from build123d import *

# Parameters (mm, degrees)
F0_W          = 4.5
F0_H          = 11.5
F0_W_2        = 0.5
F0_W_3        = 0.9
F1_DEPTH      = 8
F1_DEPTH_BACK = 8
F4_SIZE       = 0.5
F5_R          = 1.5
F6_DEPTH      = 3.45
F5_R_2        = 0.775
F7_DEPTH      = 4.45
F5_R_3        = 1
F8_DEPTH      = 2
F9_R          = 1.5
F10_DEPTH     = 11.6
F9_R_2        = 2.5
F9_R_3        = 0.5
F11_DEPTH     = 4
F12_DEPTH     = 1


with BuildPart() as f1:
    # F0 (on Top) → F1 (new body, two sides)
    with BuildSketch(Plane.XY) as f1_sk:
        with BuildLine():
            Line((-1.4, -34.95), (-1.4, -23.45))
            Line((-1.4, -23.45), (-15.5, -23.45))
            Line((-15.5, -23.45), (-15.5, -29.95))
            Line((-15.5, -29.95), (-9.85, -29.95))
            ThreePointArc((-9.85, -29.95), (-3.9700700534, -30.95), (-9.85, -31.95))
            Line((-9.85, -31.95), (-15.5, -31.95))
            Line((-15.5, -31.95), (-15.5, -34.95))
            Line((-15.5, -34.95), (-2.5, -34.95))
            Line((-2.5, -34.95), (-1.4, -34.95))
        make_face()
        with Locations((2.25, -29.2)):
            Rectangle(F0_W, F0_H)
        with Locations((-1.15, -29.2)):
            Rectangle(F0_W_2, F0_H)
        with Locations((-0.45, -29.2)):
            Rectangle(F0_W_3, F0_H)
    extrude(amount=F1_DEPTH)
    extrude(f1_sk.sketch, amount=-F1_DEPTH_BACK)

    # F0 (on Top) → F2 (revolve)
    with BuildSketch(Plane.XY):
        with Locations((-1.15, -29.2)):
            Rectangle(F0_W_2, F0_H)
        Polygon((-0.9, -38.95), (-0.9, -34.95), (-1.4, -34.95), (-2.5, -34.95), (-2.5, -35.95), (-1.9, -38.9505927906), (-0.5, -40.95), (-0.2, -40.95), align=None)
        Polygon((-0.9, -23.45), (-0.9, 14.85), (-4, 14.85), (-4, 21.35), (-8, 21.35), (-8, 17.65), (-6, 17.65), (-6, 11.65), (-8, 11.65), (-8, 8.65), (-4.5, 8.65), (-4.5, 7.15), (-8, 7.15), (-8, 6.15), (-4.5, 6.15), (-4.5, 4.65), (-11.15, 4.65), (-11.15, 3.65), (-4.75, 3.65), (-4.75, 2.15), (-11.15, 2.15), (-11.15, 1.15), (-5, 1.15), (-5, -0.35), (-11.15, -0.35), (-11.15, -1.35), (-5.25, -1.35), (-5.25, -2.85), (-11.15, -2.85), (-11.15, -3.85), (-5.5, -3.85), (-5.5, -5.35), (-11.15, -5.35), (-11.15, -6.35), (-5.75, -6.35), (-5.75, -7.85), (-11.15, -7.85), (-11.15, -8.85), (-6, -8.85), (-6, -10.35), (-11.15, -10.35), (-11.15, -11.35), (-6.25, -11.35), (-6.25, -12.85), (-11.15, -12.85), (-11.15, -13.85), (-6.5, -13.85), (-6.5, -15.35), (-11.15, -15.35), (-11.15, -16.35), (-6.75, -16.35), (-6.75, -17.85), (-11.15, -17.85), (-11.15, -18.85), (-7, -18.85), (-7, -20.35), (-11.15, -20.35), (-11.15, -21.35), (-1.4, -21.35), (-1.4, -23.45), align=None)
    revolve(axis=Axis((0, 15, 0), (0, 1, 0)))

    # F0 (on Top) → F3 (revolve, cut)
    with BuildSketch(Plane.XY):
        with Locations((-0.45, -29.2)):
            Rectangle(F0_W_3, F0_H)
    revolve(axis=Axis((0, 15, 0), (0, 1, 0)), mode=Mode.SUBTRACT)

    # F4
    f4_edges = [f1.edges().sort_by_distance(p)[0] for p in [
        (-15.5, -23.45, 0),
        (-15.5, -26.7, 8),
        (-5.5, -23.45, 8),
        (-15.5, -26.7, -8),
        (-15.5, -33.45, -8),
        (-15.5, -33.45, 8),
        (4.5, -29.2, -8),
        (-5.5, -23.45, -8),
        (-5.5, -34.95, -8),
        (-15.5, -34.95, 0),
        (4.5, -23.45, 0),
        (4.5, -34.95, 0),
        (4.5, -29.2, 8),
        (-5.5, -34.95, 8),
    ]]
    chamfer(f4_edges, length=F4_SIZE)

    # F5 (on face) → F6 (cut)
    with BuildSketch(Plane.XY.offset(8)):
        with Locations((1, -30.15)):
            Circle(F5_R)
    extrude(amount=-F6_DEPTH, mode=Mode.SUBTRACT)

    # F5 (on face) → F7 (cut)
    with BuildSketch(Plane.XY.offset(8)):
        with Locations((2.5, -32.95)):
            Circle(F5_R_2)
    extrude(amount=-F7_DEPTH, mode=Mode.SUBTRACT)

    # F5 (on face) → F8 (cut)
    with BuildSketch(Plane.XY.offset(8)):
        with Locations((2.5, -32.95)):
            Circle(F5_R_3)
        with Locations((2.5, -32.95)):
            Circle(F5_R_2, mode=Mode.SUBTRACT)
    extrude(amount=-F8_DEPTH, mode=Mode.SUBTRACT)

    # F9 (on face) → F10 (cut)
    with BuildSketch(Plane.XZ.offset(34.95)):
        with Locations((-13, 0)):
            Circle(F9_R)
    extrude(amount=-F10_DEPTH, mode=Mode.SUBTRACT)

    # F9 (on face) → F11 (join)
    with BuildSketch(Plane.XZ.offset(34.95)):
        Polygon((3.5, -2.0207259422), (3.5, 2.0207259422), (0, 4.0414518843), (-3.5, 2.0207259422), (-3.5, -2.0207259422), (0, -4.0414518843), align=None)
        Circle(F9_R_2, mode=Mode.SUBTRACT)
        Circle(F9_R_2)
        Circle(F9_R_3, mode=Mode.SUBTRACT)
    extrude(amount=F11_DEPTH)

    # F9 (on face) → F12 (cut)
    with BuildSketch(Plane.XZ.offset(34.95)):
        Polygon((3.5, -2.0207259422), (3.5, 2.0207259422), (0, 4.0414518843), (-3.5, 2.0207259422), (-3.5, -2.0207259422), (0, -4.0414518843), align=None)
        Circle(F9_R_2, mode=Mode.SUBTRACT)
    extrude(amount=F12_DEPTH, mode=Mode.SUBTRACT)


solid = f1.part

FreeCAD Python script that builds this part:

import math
import FreeCAD as App
import Part
import Sketcher

V = App.Vector
Q = App.Units.Quantity


def edges_at(feature, points):
    """Names of the edges that pass closest to the given points."""
    edges = feature.Shape.Edges
    near = lambda p: min(range(len(edges)), key=lambda i: edges[i].distToShape(Part.Vertex(*p))[0])
    return sorted({f"Edge{near(p) + 1}" for p in points})


def add_polygon(sketch, points):
    """Adds a closed chain of lines whose ends are joined by coincident constraints."""
    first, n = sketch.GeometryCount, len(points)
    for a, b in zip(points, points[1:] + points[:1]):
        sketch.addGeometry(Part.LineSegment(App.Vector(*a, 0), App.Vector(*b, 0)), False)
    for i in range(n):
        sketch.addConstraint(Sketcher.Constraint("Coincident", first + i, 2, first + (i + 1) % n, 1))

doc = App.newDocument("Part")
body = doc.addObject("PartDesign::Body", "Body")

# Sketch on XY plane
sketch1 = body.newObject("Sketcher::SketchObject", "Sketch")
sketch1.AttachmentSupport = (doc.getObject("XY_Plane"), [""])
sketch1.MapMode = "FlatFace"
sketch1.addGeometry(Part.LineSegment(V(-15.5, -23.4, 0), V(-15.5, -29.9, 0)), False)
sketch1.addGeometry(Part.LineSegment(V(-15.5, -29.9, 0), V(-9.8, -29.9, 0)), False)
sketch1.addGeometry(Part.ArcOfCircle(Part.Circle(V(-7, -30.9, 0), V(0, 0, 1), 3), math.radians(-161), math.radians(161)), False)
sketch1.addGeometry(Part.LineSegment(V(-9.8, -31.9, 0), V(-15.5, -31.9, 0)), False)
sketch1.addGeometry(Part.LineSegment(V(-15.5, -31.9, 0), V(-15.5, -35, 0)), False)
sketch1.addGeometry(Part.LineSegment(V(-15.5, -35, 0), V(4.5, -35, 0)), False)
sketch1.addGeometry(Part.LineSegment(V(4.5, -35, 0), V(4.5, -23.4, 0)), False)
sketch1.addGeometry(Part.LineSegment(V(4.5, -23.4, 0), V(-15.5, -23.4, 0)), False)
sketch1.addConstraint(Sketcher.Constraint("Coincident", 0, 2, 1, 1))
sketch1.addConstraint(Sketcher.Constraint("Coincident", 1, 2, 2, 2))
sketch1.addConstraint(Sketcher.Constraint("Coincident", 2, 1, 3, 1))
sketch1.addConstraint(Sketcher.Constraint("Coincident", 3, 2, 4, 1))
sketch1.addConstraint(Sketcher.Constraint("Coincident", 4, 2, 5, 1))
sketch1.addConstraint(Sketcher.Constraint("Coincident", 5, 2, 6, 1))
sketch1.addConstraint(Sketcher.Constraint("Coincident", 6, 2, 7, 1))
sketch1.addConstraint(Sketcher.Constraint("Coincident", 7, 2, 0, 1))
sketch1.addConstraint(Sketcher.Constraint("Vertical", 0))
sketch1.addConstraint(Sketcher.Constraint("Horizontal", 1))
sketch1.addConstraint(Sketcher.Constraint("Horizontal", 3))
sketch1.addConstraint(Sketcher.Constraint("Vertical", 4))
sketch1.addConstraint(Sketcher.Constraint("Horizontal", 5))
sketch1.addConstraint(Sketcher.Constraint("Vertical", 6))
sketch1.addConstraint(Sketcher.Constraint("Horizontal", 7))
sketch1.addConstraint(Sketcher.Constraint("Vertical", 1, 2, 2, 1))
sketch1.addConstraint(Sketcher.Constraint("Vertical", 0, 2, 3, 2))
sketch1.addConstraint(Sketcher.Constraint("DistanceX", 5, 1, 5, 2, Q("20 mm")))
sketch1.addConstraint(Sketcher.Constraint("DistanceY", 4, 2, 4, 1, Q("3 mm")))
sketch1.addConstraint(Sketcher.Constraint("DistanceY", 0, 2, 0, 1, Q("6.5 mm")))
sketch1.addConstraint(Sketcher.Constraint("DistanceY", 6, 1, 6, 2, Q("11.5 mm")))
sketch1.addConstraint(Sketcher.Constraint("Radius", 2, Q("3.025 mm")))
sketch1.addConstraint(Sketcher.Constraint("DistanceX", 1, 1, 1, 2, Q("5.65 mm")))
sketch1.addConstraint(Sketcher.Constraint("DistanceX", 0, 2, -1, 1, Q("15.5 mm")))
sketch1.addConstraint(Sketcher.Constraint("DistanceY", 2, 3, -1, 1, Q("30.95 mm")))
pad1 = body.newObject("PartDesign::Pad", "Pad")
pad1.Profile = sketch1
pad1.Type = "TwoLengths"
pad1.Length = 8
pad1.Length2 = 8

# Sketch on XY plane
sketch2 = body.newObject("Sketcher::SketchObject", "Sketch001")
sketch2.AttachmentSupport = (doc.getObject("XY_Plane"), [""])
sketch2.MapMode = "FlatFace"
add_polygon(sketch2, [(-1.4, -34.95), (-2.5, -34.95), (-2.5, -35.95), (-1.9, -38.95), (-0.5, -40.95), (-0.2, -40.95), (-0.9, -38.95), (-0.9, 14.85), (-4, 14.85), (-4, 21.35), (-8, 21.35), (-8, 17.65), (-6, 17.65), (-6, 11.65), (-8, 11.65), (-8, 8.65), (-4.5, 8.65), (-4.5, 7.15), (-8, 7.15), (-8, 6.15), (-4.5, 6.15), (-4.5, 4.65), (-11.15, 4.65), (-11.15, 3.65), (-4.75, 3.65), (-4.75, 2.15), (-11.15, 2.15), (-11.15, 1.15), (-5, 1.15), (-5, -0.35), (-11.15, -0.35), (-11.15, -1.35), (-5.25, -1.35), (-5.25, -2.85), (-11.15, -2.85), (-11.15, -3.85), (-5.5, -3.85), (-5.5, -5.35), (-11.15, -5.35), (-11.15, -6.35), (-5.75, -6.35), (-5.75, -7.85), (-11.15, -7.85), (-11.15, -8.85), (-6, -8.85), (-6, -10.35), (-11.15, -10.35), (-11.15, -11.35), (-6.25, -11.35), (-6.25, -12.85), (-11.15, -12.85), (-11.15, -13.85), (-6.5, -13.85), (-6.5, -15.35), (-11.15, -15.35), (-11.15, -16.35), (-6.75, -16.35), (-6.75, -17.85), (-11.15, -17.85), (-11.15, -18.85), (-7, -18.85), (-7, -20.35), (-11.15, -20.35), (-11.15, -21.35), (-1.4, -21.35)])  # lines 0-64
sketch2.addConstraint(Sketcher.Constraint("Horizontal", 0))
sketch2.addConstraint(Sketcher.Constraint("Vertical", 1))
sketch2.addConstraint(Sketcher.Constraint("Horizontal", 4))
sketch2.addConstraint(Sketcher.Constraint("Vertical", 6))
sketch2.addConstraint(Sketcher.Constraint("Horizontal", 7))
sketch2.addConstraint(Sketcher.Constraint("Vertical", 8))
sketch2.addConstraint(Sketcher.Constraint("Horizontal", 9))
sketch2.addConstraint(Sketcher.Constraint("Vertical", 10))
sketch2.addConstraint(Sketcher.Constraint("Horizontal", 11))
sketch2.addConstraint(Sketcher.Constraint("Vertical", 12))
sketch2.addConstraint(Sketcher.Constraint("Horizontal", 13))
sketch2.addConstraint(Sketcher.Constraint("Vertical", 14))
sketch2.addConstraint(Sketcher.Constraint("Horizontal", 15))
sketch2.addConstraint(Sketcher.Constraint("Vertical", 16))
sketch2.addConstraint(Sketcher.Constraint("Horizontal", 17))
sketch2.addConstraint(Sketcher.Constraint("Vertical", 18))
sketch2.addConstraint(Sketcher.Constraint("Horizontal", 19))
sketch2.addConstraint(Sketcher.Constraint("Vertical", 20))
sketch2.addConstraint(Sketcher.Constraint("Horizontal", 21))
sketch2.addConstraint(Sketcher.Constraint("Vertical", 22))
sketch2.addConstraint(Sketcher.Constraint("Horizontal", 23))
sketch2.addConstraint(Sketcher.Constraint("Vertical", 24))
sketch2.addConstraint(Sketcher.Constraint("Horizontal", 25))
sketch2.addConstraint(Sketcher.Constraint("Vertical", 26))
sketch2.addConstraint(Sketcher.Constraint("Horizontal", 27))
sketch2.addConstraint(Sketcher.Constraint("Vertical", 28))
sketch2.addConstraint(Sketcher.Constraint("Horizontal", 29))
sketch2.addConstraint(Sketcher.Constraint("Vertical", 30))
sketch2.addConstraint(Sketcher.Constraint("Horizontal", 31))
sketch2.addConstraint(Sketcher.Constraint("Vertical", 32))
sketch2.addConstraint(Sketcher.Constraint("Horizontal", 33))
sketch2.addConstraint(Sketcher.Constraint("Vertical", 34))
sketch2.addConstraint(Sketcher.Constraint("Horizontal", 35))
sketch2.addConstraint(Sketcher.Constraint("Vertical", 36))
sketch2.addConstraint(Sketcher.Constraint("Horizontal", 37))
sketch2.addConstraint(Sketcher.Constraint("Vertical", 38))
sketch2.addConstraint(Sketcher.Constraint("Horizontal", 39))
sketch2.addConstraint(Sketcher.Constraint("Vertical", 40))
sketch2.addConstraint(Sketcher.Constraint("Horizontal", 41))
sketch2.addConstraint(Sketcher.Constraint("Vertical", 42))
sketch2.addConstraint(Sketcher.Constraint("Horizontal", 43))
sketch2.addConstraint(Sketcher.Constraint("Vertical", 44))
sketch2.addConstraint(Sketcher.Constraint("Horizontal", 45))
sketch2.addConstraint(Sketcher.Constraint("Vertical", 46))
sketch2.addConstraint(Sketcher.Constraint("Horizontal", 47))
sketch2.addConstraint(Sketcher.Constraint("Vertical", 48))
sketch2.addConstraint(Sketcher.Constraint("Horizontal", 49))
sketch2.addConstraint(Sketcher.Constraint("Vertical", 50))
sketch2.addConstraint(Sketcher.Constraint("Horizontal", 51))
sketch2.addConstraint(Sketcher.Constraint("Vertical", 52))
sketch2.addConstraint(Sketcher.Constraint("Horizontal", 53))
sketch2.addConstraint(Sketcher.Constraint("Vertical", 54))
sketch2.addConstraint(Sketcher.Constraint("Horizontal", 55))
sketch2.addConstraint(Sketcher.Constraint("Vertical", 56))
sketch2.addConstraint(Sketcher.Constraint("Horizontal", 57))
sketch2.addConstraint(Sketcher.Constraint("Vertical", 58))
sketch2.addConstraint(Sketcher.Constraint("Horizontal", 59))
sketch2.addConstraint(Sketcher.Constraint("Vertical", 60))
sketch2.addConstraint(Sketcher.Constraint("Horizontal", 61))
sketch2.addConstraint(Sketcher.Constraint("Vertical", 62))
sketch2.addConstraint(Sketcher.Constraint("Horizontal", 63))
sketch2.addConstraint(Sketcher.Constraint("Vertical", 64))
sketch2.addConstraint(Sketcher.Constraint("Vertical", 10, 2, 13, 2))
sketch2.addConstraint(Sketcher.Constraint("Vertical", 14, 2, 17, 2))
sketch2.addConstraint(Sketcher.Constraint("Vertical", 16, 2, 19, 2))
sketch2.addConstraint(Sketcher.Constraint("Vertical", 22, 2, 25, 2))
sketch2.addConstraint(Sketcher.Constraint("Vertical", 26, 2, 29, 2))
sketch2.addConstraint(Sketcher.Constraint("Vertical", 30, 2, 33, 2))
sketch2.addConstraint(Sketcher.Constraint("Vertical", 34, 2, 37, 2))
sketch2.addConstraint(Sketcher.Constraint("Vertical", 38, 2, 41, 2))
sketch2.addConstraint(Sketcher.Constraint("Vertical", 12, 2, 43, 2))
sketch2.addConstraint(Sketcher.Constraint("Vertical", 42, 2, 45, 2))
sketch2.addConstraint(Sketcher.Constraint("Vertical", 46, 2, 49, 2))
sketch2.addConstraint(Sketcher.Constraint("Vertical", 50, 2, 53, 2))
sketch2.addConstraint(Sketcher.Constraint("Vertical", 54, 2, 57, 2))
sketch2.addConstraint(Sketcher.Constraint("Vertical", 58, 2, 61, 2))
sketch2.addConstraint(Sketcher.Constraint("Equal", 1, 18))
sketch2.addConstraint(Sketcher.Constraint("Equal", 16, 20))
sketch2.addConstraint(Sketcher.Constraint("Equal", 18, 22))
sketch2.addConstraint(Sketcher.Constraint("Equal", 20, 24))
sketch2.addConstraint(Sketcher.Constraint("Equal", 22, 26))
sketch2.addConstraint(Sketcher.Constraint("Equal", 24, 28))
sketch2.addConstraint(Sketcher.Constraint("Equal", 26, 30))
sketch2.addConstraint(Sketcher.Constraint("Equal", 28, 32))
sketch2.addConstraint(Sketcher.Constraint("Equal", 30, 34))
sketch2.addConstraint(Sketcher.Constraint("Equal", 32, 36))
sketch2.addConstraint(Sketcher.Constraint("Equal", 34, 38))
sketch2.addConstraint(Sketcher.Constraint("Equal", 36, 40))
sketch2.addConstraint(Sketcher.Constraint("Equal", 38, 42))
sketch2.addConstraint(Sketcher.Constraint("Equal", 40, 44))
sketch2.addConstraint(Sketcher.Constraint("Equal", 42, 46))
sketch2.addConstraint(Sketcher.Constraint("Equal", 44, 48))
sketch2.addConstraint(Sketcher.Constraint("Equal", 46, 50))
sketch2.addConstraint(Sketcher.Constraint("Equal", 48, 52))
sketch2.addConstraint(Sketcher.Constraint("Equal", 50, 54))
sketch2.addConstraint(Sketcher.Constraint("Equal", 52, 56))
sketch2.addConstraint(Sketcher.Constraint("Equal", 54, 58))
sketch2.addConstraint(Sketcher.Constraint("Equal", 56, 60))
sketch2.addConstraint(Sketcher.Constraint("Equal", 58, 62))
sketch2.addConstraint(Sketcher.Constraint("DistanceX", 9, 2, 9, 1, Q("4 mm")))
sketch2.addConstraint(Sketcher.Constraint("DistanceX", 11, 1, 11, 2, Q("2 mm")))
sketch2.addConstraint(Sketcher.Constraint("DistanceY", 1, 2, 1, 1, Q("1 mm")))
sketch2.addConstraint(Sketcher.Constraint("DistanceY", 12, 2, 12, 1, Q("6 mm")))
sketch2.addConstraint(Sketcher.Constraint("DistanceY", 14, 2, 14, 1, Q("3 mm")))
sketch2.addConstraint(Sketcher.Constraint("Angle", 3, Q("-55 deg")))
sketch2.addConstraint(Sketcher.Constraint("DistanceX", 0, 2, 0, 1, Q("1.1 mm")))
sketch2.addConstraint(Sketcher.Constraint("DistanceX", 4, 1, 4, 2, Q("0.3 mm")))
sketch2.addConstraint(Sketcher.Constraint("DistanceX", 7, 2, 7, 1, Q("3.1 mm")))
sketch2.addConstraint(Sketcher.Constraint("DistanceX", 15, 1, 15, 2, Q("3.5 mm")))
sketch2.addConstraint(Sketcher.Constraint("DistanceX", 23, 1, 23, 2, Q("6.4 mm")))
sketch2.addConstraint(Sketcher.Constraint("DistanceX", 31, 1, 31, 2, Q("5.9 mm")))
sketch2.addConstraint(Sketcher.Constraint("DistanceX", 39, 1, 39, 2, Q("5.4 mm")))
sketch2.addConstraint(Sketcher.Constraint("DistanceX", 47, 1, 47, 2, Q("4.9 mm")))
sketch2.addConstraint(Sketcher.Constraint("DistanceX", 55, 1, 55, 2, Q("4.4 mm")))
sketch2.addConstraint(Sketcher.Constraint("DistanceY", 6, 1, 6, 2, Q("53.8 mm")))
sketch2.addConstraint(Sketcher.Constraint("DistanceY", 8, 1, 8, 2, Q("6.5 mm")))
sketch2.addConstraint(Sketcher.Constraint("DistanceY", 10, 2, 10, 1, Q("3.7 mm")))
sketch2.addConstraint(Sketcher.Constraint("DistanceY", 16, 2, 16, 1, Q("1.5 mm")))
sketch2.addConstraint(Sketcher.Constraint("DistanceY", 64, 2, 64, 1, Q("13.6 mm")))
sketch2.addConstraint(Sketcher.Constraint("DistanceX", 7, 2, -1, 1, Q("4 mm")))
sketch2.addConstraint(Sketcher.Constraint("DistanceX", 27, 2, -1, 1, Q("5 mm")))
sketch2.addConstraint(Sketcher.Constraint("DistanceX", 59, 2, -1, 1, Q("7 mm")))
sketch2.addConstraint(Sketcher.Constraint("DistanceX", 21, 2, 21, 1, Q("6.65 mm")))
sketch2.addConstraint(Sketcher.Constraint("DistanceX", 35, 1, 35, 2, Q("5.65 mm")))
sketch2.addConstraint(Sketcher.Constraint("DistanceX", 51, 1, 51, 2, Q("4.65 mm")))
sketch2.addConstraint(Sketcher.Constraint("DistanceX", 63, 1, 63, 2, Q("9.75 mm")))
sketch2.addConstraint(Sketcher.Constraint("DistanceX", 2, 2, -1, 1, Q("1.9 mm")))
sketch2.addConstraint(Sketcher.Constraint("DistanceX", 3, 2, -1, 1, Q("0.5 mm")))
sketch2.addConstraint(Sketcher.Constraint("DistanceY", 0, 2, -1, 1, Q("34.95 mm")))
sketch2.addConstraint(Sketcher.Constraint("DistanceY", 3, 2, -1, 1, Q("40.95 mm")))
revolution = body.newObject("PartDesign::Revolution", "Revolution")
revolution.Profile = sketch2
revolution.ReferenceAxis = (sketch2, ["V_Axis"])
revolution.Angle = 360

# Sketch on XY plane
sketch3 = body.newObject("Sketcher::SketchObject", "Sketch002")
sketch3.AttachmentSupport = (doc.getObject("XY_Plane"), [""])
sketch3.MapMode = "FlatFace"
add_polygon(sketch3, [(-0.9, -23.4), (-0.9, -35), (0, -35), (0, -23.4)])  # lines 0-3
sketch3.addConstraint(Sketcher.Constraint("Vertical", 0))
sketch3.addConstraint(Sketcher.Constraint("Horizontal", 1))
sketch3.addConstraint(Sketcher.Constraint("Vertical", 2))
sketch3.addConstraint(Sketcher.Constraint("Horizontal", 3))
sketch3.addConstraint(Sketcher.Constraint("PointOnObject", 1, 2, -2))
sketch3.addConstraint(Sketcher.Constraint("DistanceX", 1, 1, 1, 2, Q("0.9 mm")))
sketch3.addConstraint(Sketcher.Constraint("DistanceY", 0, 2, 0, 1, Q("11.5 mm")))
sketch3.addConstraint(Sketcher.Constraint("DistanceY", 0, 2, -1, 1, Q("34.95 mm")))
groove = body.newObject("PartDesign::Groove", "Groove")
groove.Profile = sketch3
groove.ReferenceAxis = (sketch3, ["V_Axis"])
groove.Angle = 360
doc.recompute()

chamfer = body.newObject("PartDesign::Chamfer", "Chamfer")
chamfer.Base = (groove, edges_at(groove, [
    (-15.5, -23.45, 0),
    (-15.5, -26.7, 8),
    (-5.5, -23.45, 8),
    (-15.5, -26.7, -8),
    (-15.5, -33.45, -8),
    (-15.5, -33.45, 8),
    (4.5, -29.2, -8),
    (-5.5, -23.45, -8),
    (-5.5, -34.95, -8),
    (-15.5, -34.95, 0),
    (4.5, -23.45, 0),
    (4.5, -34.95, 0),
    (4.5, -29.2, 8),
    (-5.5, -34.95, 8),
]))
chamfer.Size = 0.5

# Sketch on XY plane
sketch4 = body.newObject("Sketcher::SketchObject", "Sketch003")
sketch4.AttachmentSupport = (doc.getObject("XY_Plane"), [""])
sketch4.MapMode = "FlatFace"
sketch4.AttachmentOffset = App.Placement(V(0, 0, 8), App.Rotation())
sketch4.addGeometry(Part.Circle(V(1, -30.1, 0), V(0, 0, 1), 1.5), False)
sketch4.addConstraint(Sketcher.Constraint("Diameter", 0, Q("3 mm")))
sketch4.addConstraint(Sketcher.Constraint("DistanceX", -1, 1, 0, 3, Q("1 mm")))
sketch4.addConstraint(Sketcher.Constraint("DistanceY", 0, 3, -1, 1, Q("30.15 mm")))
pocket1 = body.newObject("PartDesign::Pocket", "Pocket")
pocket1.Profile = sketch4
pocket1.Length = 3.45

# Sketch on XY plane
sketch5 = body.newObject("Sketcher::SketchObject", "Sketch004")
sketch5.AttachmentSupport = (doc.getObject("XY_Plane"), [""])
sketch5.MapMode = "FlatFace"
sketch5.AttachmentOffset = App.Placement(V(0, 0, 8), App.Rotation())
sketch5.addGeometry(Part.Circle(V(2.5, -33, 0), V(0, 0, 1), 0.8), False)
sketch5.addConstraint(Sketcher.Constraint("Diameter", 0, Q("1.55 mm")))
sketch5.addConstraint(Sketcher.Constraint("DistanceX", -1, 1, 0, 3, Q("2.5 mm")))
sketch5.addConstraint(Sketcher.Constraint("DistanceY", 0, 3, -1, 1, Q("32.95 mm")))
pocket2 = body.newObject("PartDesign::Pocket", "Pocket001")
pocket2.Profile = sketch5
pocket2.Length = 4.45

# Sketch on XY plane
sketch6 = body.newObject("Sketcher::SketchObject", "Sketch005")
sketch6.AttachmentSupport = (doc.getObject("XY_Plane"), [""])
sketch6.MapMode = "FlatFace"
sketch6.AttachmentOffset = App.Placement(V(0, 0, 8), App.Rotation())
sketch6.addGeometry(Part.Circle(V(2.5, -33, 0), V(0, 0, 1), 1), False)
sketch6.addGeometry(Part.Circle(V(2.5, -33, 0), V(0, 0, 1), 0.8), False)
sketch6.addConstraint(Sketcher.Constraint("Coincident", 1, 3, 0, 3))
sketch6.addConstraint(Sketcher.Constraint("Diameter", 0, Q("2 mm")))
sketch6.addConstraint(Sketcher.Constraint("Diameter", 1, Q("1.55 mm")))
sketch6.addConstraint(Sketcher.Constraint("DistanceX", -1, 1, 0, 3, Q("2.5 mm")))
sketch6.addConstraint(Sketcher.Constraint("DistanceY", 0, 3, -1, 1, Q("32.95 mm")))
pocket3 = body.newObject("PartDesign::Pocket", "Pocket002")
pocket3.Profile = sketch6
pocket3.Length = 2

# Sketch on XZ plane
sketch7 = body.newObject("Sketcher::SketchObject", "Sketch006")
sketch7.AttachmentSupport = (doc.getObject("XZ_Plane"), [""])
sketch7.MapMode = "FlatFace"
sketch7.AttachmentOffset = App.Placement(V(0, 0, 34.95), App.Rotation())
sketch7.addGeometry(Part.Circle(V(-13, 0, 0), V(0, 0, 1), 1.5), False)
sketch7.addConstraint(Sketcher.Constraint("PointOnObject", 0, 3, -1))
sketch7.addConstraint(Sketcher.Constraint("Diameter", 0, Q("3 mm")))
sketch7.addConstraint(Sketcher.Constraint("DistanceX", 0, 3, -1, 1, Q("13 mm")))
pocket4 = body.newObject("PartDesign::Pocket", "Pocket003")
pocket4.Profile = sketch7
pocket4.Length = 11.6

# Sketch on XZ plane
sketch8 = body.newObject("Sketcher::SketchObject", "Sketch007")
sketch8.AttachmentSupport = (doc.getObject("XZ_Plane"), [""])
sketch8.MapMode = "FlatFace"
sketch8.AttachmentOffset = App.Placement(V(0, 0, 34.95), App.Rotation())
add_polygon(sketch8, [(3.5, -2), (3.5, 2), (0, 4), (-3.5, 2), (-3.5, -2), (0, -4)])  # lines 0-5
sketch8.addGeometry(Part.Circle(V(0, 0, 0), V(0, 0, 1), 0.5), False)  # 6
sketch8.addConstraint(Sketcher.Constraint("Vertical", 0))
sketch8.addConstraint(Sketcher.Constraint("Vertical", 3))
sketch8.addConstraint(Sketcher.Constraint("Coincident", 6, 3, -1, 1))
sketch8.addConstraint(Sketcher.Constraint("Symmetric", 0, 2, 3, 2, -1, 1))
sketch8.addConstraint(Sketcher.Constraint("Symmetric", 1, 2, 4, 2, -1, 1))
sketch8.addConstraint(Sketcher.Constraint("PointOnObject", 1, 2, -2))
sketch8.addConstraint(Sketcher.Constraint("Parallel", 2, 5))
sketch8.addConstraint(Sketcher.Constraint("Horizontal", 0, 2, 2, 2))
sketch8.addConstraint(Sketcher.Constraint("Diameter", 6, Q("1 mm")))
sketch8.addConstraint(Sketcher.Constraint("Angle", 1, Q("150 deg")))
sketch8.addConstraint(Sketcher.Constraint("DistanceX", 2, 2, 0, 2, Q("7 mm")))
sketch8.addConstraint(Sketcher.Constraint("DistanceY", 0, 1, 0, 2, Q("4.041452 mm")))
pad2 = body.newObject("PartDesign::Pad", "Pad001")
pad2.Profile = sketch8
pad2.Length = 4

# Sketch on XZ plane
sketch9 = body.newObject("Sketcher::SketchObject", "Sketch008")
sketch9.AttachmentSupport = (doc.getObject("XZ_Plane"), [""])
sketch9.MapMode = "FlatFace"
sketch9.AttachmentOffset = App.Placement(V(0, 0, 34.95), App.Rotation())
add_polygon(sketch9, [(3.5, -2), (3.5, 2), (0, 4), (-3.5, 2), (-3.5, -2), (0, -4)])  # lines 0-5
sketch9.addGeometry(Part.Circle(V(0, 0, 0), V(0, 0, 1), 2.5), False)  # 6
sketch9.addConstraint(Sketcher.Constraint("Vertical", 0))
sketch9.addConstraint(Sketcher.Constraint("Vertical", 3))
sketch9.addConstraint(Sketcher.Constraint("Coincident", 6, 3, -1, 1))
sketch9.addConstraint(Sketcher.Constraint("Symmetric", 0, 2, 3, 2, -1, 1))
sketch9.addConstraint(Sketcher.Constraint("Symmetric", 1, 2, 4, 2, -1, 1))
sketch9.addConstraint(Sketcher.Constraint("PointOnObject", 1, 2, -2))
sketch9.addConstraint(Sketcher.Constraint("Parallel", 2, 5))
sketch9.addConstraint(Sketcher.Constraint("Horizontal", 0, 2, 2, 2))
sketch9.addConstraint(Sketcher.Constraint("Diameter", 6, Q("5 mm")))
sketch9.addConstraint(Sketcher.Constraint("Angle", 1, Q("150 deg")))
sketch9.addConstraint(Sketcher.Constraint("DistanceX", 2, 2, 0, 2, Q("7 mm")))
sketch9.addConstraint(Sketcher.Constraint("DistanceY", 0, 1, 0, 2, Q("4.041452 mm")))
pocket5 = body.newObject("PartDesign::Pocket", "Pocket004")
pocket5.Profile = sketch9
pocket5.Length = 1
pocket5.Reversed = True

doc.recompute()
